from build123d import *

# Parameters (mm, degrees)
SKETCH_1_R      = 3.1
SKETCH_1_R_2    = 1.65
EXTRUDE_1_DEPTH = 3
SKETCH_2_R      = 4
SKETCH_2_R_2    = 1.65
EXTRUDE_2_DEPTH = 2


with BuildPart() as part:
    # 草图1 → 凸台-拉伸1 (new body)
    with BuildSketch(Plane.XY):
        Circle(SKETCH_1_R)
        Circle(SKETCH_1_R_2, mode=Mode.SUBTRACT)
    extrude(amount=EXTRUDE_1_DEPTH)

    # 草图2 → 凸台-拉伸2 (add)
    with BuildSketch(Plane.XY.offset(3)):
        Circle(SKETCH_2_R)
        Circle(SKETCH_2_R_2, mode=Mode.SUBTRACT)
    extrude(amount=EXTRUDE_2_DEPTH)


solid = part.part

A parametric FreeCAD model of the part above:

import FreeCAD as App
import Part
import Sketcher
Q = App.Units.Quantity

doc = App.newDocument("Part")
body = doc.addObject("PartDesign::Body", "Body")

# Sketch on XY plane
sketch1 = body.newObject("Sketcher::SketchObject", "Sketch")
sketch1.AttachmentSupport = (doc.getObject("XY_Plane"), [""])
sketch1.MapMode = "FlatFace"
sketch1.addGeometry([
    Part.Circle(App.Vector(0, 0, 0), App.Vector(0, 0, 1), 3.1),
    Part.Circle(App.Vector(0, 0, 0), App.Vector(0, 0, 1), 1.6),
], False)
sketch1.addConstraint([
    Sketcher.Constraint("Coincident", 0, 3, -1, 1),
    Sketcher.Constraint("Coincident", 1, 3, -1, 1),
    Sketcher.Constraint("Diameter", 0, Q("6.2 mm")),
    Sketcher.Constraint("Diameter", 1, Q("3.3 mm")),
])
pad1 = body.newObject("PartDesign::Pad", "Pad")
pad1.Profile = sketch1
pad1.Length = 3

# Sketch on XY plane
sketch2 = body.newObject("Sketcher::SketchObject", "Sketch001")
sketch2.AttachmentSupport = (doc.getObject("XY_Plane"), [""])
sketch2.MapMode = "FlatFace"
sketch2.AttachmentOffset = App.Placement(App.Vector(0, 0, 3), App.Rotation())
sketch2.addGeometry([
    Part.Circle(App.Vector(0, 0, 0), App.Vector(0, 0, 1), 4),
    Part.Circle(App.Vector(0, 0, 0), App.Vector(0, 0, 1), 1.6),
], False)
sketch2.addConstraint([
    Sketcher.Constraint("Coincident", 0, 3, -1, 1),
    Sketcher.Constraint("Coincident", 1, 3, -1, 1),
    Sketcher.Constraint("Diameter", 0, Q("8 mm")),
    Sketcher.Constraint("Diameter", 1, Q("3.3 mm")),
])
pad2 = body.newObject("PartDesign::Pad", "Pad001")
pad2.Profile = sketch2
pad2.Length = 2

doc.recompute()
